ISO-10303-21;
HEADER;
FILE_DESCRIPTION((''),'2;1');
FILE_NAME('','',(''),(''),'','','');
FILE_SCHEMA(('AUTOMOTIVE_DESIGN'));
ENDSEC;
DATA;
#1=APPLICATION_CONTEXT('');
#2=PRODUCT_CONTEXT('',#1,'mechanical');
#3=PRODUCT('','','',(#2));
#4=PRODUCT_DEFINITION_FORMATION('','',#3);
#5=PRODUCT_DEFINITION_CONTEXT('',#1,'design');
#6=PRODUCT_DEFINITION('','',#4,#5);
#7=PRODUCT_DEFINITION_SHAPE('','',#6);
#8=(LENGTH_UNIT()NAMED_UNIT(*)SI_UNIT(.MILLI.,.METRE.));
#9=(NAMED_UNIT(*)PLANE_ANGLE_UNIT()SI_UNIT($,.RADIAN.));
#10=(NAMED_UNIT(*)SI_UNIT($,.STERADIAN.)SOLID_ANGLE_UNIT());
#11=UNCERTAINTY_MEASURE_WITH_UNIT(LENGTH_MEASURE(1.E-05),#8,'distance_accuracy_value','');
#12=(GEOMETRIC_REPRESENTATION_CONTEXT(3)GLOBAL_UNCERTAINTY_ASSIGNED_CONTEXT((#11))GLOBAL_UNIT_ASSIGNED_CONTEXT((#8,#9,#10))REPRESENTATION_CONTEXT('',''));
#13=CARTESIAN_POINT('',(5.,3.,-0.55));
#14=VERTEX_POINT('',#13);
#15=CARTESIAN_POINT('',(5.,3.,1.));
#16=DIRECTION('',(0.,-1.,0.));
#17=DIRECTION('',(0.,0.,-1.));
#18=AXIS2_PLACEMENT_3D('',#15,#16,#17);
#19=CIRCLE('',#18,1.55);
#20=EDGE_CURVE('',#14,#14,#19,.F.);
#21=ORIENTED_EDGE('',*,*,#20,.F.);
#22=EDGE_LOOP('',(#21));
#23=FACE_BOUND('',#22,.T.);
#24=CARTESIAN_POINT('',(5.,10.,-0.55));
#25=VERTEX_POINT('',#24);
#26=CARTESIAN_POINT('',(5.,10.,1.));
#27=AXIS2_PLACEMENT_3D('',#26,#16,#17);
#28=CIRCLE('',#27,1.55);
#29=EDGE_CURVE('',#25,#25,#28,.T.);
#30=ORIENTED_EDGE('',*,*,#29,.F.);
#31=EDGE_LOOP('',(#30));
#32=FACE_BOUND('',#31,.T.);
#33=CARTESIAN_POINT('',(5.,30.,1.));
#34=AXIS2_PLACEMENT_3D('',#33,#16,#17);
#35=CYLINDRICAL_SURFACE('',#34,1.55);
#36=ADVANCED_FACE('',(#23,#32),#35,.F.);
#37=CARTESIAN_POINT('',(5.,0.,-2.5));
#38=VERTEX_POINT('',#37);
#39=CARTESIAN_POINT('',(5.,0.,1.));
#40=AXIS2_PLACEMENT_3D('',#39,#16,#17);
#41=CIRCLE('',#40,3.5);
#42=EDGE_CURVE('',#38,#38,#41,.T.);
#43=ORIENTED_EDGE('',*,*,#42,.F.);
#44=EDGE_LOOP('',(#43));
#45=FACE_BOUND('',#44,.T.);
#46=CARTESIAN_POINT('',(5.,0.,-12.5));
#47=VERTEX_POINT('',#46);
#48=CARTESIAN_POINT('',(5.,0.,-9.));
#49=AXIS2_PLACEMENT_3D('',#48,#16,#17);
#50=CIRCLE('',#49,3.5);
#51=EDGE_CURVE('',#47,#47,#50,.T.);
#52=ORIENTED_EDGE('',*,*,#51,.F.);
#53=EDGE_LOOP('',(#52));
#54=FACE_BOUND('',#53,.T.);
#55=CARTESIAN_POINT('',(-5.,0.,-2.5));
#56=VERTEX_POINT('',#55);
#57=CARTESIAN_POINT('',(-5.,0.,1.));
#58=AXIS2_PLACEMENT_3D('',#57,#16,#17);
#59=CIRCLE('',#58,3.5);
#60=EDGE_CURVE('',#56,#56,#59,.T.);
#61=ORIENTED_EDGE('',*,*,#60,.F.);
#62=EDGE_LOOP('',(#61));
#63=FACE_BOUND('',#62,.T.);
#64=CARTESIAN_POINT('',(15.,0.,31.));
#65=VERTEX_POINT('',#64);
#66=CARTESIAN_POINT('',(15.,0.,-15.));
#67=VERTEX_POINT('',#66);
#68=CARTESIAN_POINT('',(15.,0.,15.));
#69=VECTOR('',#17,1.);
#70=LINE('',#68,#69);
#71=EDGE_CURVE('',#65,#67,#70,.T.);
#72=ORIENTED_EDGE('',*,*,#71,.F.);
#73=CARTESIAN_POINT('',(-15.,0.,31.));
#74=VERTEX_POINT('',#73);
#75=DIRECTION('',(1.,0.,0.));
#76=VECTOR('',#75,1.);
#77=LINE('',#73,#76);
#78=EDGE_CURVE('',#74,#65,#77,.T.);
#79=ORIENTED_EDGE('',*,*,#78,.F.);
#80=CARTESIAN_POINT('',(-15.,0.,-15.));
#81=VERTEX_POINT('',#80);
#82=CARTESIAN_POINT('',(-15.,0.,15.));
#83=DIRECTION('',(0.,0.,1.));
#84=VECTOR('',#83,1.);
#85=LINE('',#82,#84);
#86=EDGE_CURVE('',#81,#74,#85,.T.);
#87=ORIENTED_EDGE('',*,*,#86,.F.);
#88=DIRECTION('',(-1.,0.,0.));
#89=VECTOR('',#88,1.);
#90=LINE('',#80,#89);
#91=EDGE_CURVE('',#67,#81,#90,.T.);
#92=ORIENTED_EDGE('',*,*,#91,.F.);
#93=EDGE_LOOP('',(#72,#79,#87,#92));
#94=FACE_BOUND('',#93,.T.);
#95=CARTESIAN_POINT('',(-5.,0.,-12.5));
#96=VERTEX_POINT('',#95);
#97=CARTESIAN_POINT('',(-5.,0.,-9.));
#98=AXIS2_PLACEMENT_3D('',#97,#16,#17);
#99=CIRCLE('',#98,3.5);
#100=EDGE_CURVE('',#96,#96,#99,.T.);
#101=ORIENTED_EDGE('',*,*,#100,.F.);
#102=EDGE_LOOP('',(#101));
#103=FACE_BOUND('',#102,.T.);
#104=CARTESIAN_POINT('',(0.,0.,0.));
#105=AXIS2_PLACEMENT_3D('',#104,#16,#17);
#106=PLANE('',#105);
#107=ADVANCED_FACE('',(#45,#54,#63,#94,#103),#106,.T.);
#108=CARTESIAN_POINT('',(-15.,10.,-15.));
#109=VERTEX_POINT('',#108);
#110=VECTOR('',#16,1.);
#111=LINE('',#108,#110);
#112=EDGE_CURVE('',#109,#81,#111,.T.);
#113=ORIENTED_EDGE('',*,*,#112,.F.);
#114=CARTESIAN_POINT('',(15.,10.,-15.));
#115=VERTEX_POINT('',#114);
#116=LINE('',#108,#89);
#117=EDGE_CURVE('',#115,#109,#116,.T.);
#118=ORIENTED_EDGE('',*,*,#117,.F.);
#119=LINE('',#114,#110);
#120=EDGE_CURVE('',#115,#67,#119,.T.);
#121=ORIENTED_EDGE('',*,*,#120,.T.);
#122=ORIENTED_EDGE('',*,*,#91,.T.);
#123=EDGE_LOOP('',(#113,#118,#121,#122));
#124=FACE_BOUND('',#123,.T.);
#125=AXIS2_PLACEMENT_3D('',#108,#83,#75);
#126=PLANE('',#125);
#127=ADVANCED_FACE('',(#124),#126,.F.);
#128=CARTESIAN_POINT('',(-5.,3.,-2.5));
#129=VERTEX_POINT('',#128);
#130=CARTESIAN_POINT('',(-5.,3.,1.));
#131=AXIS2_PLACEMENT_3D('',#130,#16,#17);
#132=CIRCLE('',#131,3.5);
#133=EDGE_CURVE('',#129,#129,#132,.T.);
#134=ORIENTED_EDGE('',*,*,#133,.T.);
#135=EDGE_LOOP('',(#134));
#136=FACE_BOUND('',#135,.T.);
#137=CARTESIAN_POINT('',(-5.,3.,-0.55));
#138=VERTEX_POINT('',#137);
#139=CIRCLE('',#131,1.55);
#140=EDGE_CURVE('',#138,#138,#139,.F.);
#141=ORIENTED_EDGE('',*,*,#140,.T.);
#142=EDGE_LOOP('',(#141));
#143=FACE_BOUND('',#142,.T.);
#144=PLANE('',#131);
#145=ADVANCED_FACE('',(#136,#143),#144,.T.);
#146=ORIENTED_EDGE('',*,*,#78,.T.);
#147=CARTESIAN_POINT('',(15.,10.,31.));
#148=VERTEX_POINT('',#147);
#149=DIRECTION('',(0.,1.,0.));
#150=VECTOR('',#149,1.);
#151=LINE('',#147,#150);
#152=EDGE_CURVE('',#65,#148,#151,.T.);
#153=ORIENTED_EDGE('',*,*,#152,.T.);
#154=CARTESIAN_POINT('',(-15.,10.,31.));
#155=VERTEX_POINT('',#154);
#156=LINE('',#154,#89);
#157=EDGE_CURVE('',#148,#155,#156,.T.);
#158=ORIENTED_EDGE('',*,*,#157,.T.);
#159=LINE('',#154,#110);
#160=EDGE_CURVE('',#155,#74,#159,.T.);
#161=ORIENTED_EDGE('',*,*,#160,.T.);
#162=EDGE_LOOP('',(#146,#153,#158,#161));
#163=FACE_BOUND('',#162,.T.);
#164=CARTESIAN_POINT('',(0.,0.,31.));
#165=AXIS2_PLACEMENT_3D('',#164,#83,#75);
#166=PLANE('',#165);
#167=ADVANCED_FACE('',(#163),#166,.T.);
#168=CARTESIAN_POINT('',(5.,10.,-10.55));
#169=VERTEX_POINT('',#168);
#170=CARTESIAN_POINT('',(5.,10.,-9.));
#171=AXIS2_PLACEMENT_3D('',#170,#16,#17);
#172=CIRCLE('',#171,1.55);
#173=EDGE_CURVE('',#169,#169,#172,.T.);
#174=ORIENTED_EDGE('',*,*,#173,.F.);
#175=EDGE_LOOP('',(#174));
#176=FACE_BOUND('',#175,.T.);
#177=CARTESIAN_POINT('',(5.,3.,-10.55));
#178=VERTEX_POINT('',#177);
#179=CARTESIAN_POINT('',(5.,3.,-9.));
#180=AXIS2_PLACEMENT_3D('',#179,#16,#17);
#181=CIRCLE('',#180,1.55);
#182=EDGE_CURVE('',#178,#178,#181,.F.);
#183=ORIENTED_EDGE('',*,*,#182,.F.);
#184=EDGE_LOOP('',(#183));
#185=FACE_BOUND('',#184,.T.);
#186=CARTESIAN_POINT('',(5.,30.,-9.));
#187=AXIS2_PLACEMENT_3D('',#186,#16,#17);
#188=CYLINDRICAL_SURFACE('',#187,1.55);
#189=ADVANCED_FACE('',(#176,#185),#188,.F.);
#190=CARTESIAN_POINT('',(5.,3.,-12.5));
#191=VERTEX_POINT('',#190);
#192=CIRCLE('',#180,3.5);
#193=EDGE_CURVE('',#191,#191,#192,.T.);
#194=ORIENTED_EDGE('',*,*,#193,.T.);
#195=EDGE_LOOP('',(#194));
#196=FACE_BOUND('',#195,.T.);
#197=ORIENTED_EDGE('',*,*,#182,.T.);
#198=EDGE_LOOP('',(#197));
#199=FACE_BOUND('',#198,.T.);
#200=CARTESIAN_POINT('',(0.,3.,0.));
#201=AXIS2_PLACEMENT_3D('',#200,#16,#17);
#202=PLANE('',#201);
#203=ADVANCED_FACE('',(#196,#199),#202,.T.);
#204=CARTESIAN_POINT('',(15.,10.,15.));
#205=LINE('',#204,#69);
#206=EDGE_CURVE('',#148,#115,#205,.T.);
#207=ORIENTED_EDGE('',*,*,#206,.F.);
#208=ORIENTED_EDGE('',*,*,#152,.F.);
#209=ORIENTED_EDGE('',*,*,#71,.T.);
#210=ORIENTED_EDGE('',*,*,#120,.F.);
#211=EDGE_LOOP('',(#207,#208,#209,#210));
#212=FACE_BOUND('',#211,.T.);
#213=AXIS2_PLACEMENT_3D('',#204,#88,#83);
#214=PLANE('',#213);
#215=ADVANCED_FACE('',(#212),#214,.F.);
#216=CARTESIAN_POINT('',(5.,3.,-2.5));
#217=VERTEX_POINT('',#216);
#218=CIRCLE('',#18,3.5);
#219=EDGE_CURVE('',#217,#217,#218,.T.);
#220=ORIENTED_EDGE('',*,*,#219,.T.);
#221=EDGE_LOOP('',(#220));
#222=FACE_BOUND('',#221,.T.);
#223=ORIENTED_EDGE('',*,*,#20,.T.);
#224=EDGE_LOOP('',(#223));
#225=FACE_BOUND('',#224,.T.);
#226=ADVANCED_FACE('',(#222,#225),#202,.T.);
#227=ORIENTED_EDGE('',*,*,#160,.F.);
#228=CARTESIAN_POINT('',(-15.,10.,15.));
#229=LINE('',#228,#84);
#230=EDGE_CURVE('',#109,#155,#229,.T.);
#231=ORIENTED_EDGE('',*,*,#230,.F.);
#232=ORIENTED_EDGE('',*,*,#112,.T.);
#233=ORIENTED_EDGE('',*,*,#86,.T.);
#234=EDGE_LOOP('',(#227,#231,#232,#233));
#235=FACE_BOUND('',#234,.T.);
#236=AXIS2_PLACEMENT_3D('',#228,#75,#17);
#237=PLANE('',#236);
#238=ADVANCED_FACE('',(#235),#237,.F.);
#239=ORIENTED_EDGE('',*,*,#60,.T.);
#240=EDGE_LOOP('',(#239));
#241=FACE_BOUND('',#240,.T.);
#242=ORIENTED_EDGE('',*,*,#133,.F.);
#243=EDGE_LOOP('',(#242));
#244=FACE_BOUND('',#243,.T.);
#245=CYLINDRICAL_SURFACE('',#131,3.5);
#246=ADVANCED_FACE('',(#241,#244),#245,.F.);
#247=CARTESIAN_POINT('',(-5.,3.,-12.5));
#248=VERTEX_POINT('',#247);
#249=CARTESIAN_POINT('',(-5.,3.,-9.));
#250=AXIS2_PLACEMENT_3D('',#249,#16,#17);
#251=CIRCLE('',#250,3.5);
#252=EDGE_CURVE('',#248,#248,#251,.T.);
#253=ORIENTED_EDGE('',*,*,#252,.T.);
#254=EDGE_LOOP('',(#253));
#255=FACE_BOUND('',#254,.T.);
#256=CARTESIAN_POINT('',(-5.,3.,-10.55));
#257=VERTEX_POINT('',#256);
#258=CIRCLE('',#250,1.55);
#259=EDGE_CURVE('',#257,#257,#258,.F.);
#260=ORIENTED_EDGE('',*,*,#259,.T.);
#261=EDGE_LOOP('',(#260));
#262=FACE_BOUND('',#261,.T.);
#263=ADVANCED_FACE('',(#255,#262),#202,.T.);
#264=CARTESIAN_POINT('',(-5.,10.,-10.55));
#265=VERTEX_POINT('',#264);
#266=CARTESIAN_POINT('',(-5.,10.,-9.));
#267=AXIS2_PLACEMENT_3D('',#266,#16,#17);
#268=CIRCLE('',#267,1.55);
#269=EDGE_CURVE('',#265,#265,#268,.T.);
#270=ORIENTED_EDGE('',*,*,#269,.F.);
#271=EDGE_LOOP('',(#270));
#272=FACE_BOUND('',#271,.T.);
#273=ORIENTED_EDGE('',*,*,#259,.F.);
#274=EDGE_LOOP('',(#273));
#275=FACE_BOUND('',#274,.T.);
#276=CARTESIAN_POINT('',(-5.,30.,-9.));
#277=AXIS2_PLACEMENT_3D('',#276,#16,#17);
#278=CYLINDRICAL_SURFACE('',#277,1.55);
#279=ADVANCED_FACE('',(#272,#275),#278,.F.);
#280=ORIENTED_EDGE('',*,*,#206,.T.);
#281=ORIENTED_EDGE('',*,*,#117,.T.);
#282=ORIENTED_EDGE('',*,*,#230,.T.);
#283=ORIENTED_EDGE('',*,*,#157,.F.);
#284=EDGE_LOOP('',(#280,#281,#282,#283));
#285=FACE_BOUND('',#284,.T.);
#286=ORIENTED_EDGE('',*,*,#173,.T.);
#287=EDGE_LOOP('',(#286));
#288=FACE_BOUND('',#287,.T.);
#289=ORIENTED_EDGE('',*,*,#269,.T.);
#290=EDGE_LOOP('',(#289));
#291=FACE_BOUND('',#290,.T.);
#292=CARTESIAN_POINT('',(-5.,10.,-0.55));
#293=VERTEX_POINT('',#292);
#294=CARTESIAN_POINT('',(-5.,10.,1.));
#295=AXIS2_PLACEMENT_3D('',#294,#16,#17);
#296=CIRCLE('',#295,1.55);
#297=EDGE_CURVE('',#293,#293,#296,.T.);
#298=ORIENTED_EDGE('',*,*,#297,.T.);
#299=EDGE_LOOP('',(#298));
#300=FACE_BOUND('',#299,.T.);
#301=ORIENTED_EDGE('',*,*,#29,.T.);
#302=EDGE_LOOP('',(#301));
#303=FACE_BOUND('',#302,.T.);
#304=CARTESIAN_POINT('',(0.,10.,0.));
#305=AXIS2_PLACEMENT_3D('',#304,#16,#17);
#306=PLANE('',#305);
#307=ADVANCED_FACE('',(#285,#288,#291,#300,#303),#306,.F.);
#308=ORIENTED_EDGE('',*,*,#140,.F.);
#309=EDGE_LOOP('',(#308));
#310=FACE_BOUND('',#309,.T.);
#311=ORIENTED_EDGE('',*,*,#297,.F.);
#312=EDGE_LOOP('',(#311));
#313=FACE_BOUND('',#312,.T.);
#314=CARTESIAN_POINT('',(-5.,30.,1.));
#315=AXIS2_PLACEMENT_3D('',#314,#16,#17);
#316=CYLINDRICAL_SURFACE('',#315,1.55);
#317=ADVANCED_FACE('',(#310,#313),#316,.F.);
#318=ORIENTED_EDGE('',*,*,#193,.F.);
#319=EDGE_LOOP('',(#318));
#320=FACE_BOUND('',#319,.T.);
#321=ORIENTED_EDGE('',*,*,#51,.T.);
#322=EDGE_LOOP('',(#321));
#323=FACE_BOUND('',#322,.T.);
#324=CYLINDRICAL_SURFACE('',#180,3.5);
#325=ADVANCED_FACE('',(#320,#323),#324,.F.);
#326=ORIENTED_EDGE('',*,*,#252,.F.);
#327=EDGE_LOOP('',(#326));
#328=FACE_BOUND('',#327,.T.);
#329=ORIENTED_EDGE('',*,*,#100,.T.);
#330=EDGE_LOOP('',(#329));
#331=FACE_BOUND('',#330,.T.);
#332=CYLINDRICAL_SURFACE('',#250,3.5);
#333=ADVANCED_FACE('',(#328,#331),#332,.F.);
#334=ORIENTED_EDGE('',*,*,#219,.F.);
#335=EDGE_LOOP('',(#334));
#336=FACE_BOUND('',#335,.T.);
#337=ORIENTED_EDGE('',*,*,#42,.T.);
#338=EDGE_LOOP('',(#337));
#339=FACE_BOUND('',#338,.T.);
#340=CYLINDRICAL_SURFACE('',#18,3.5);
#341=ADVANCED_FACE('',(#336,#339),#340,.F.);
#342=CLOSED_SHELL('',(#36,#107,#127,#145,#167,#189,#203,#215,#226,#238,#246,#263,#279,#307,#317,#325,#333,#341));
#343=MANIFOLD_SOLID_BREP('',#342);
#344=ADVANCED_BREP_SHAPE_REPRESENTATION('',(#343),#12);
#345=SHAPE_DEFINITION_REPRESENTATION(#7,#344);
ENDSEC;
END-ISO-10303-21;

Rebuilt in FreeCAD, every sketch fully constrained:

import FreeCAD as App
import Part
import Sketcher

V = App.Vector

doc = App.newDocument("Part")
body = doc.addObject("PartDesign::Body", "Body")

# Sketch on XZ plane
sketch1 = doc.addObject("Sketcher::SketchObject", "Sketch")
body.addObject(sketch1)
sketch1.AttachmentSupport = (doc.XZ_Plane, [""])
sketch1.MapMode = "FlatFace"
sketch1.addGeometry(Part.LineSegment(V(-15, -15, 0), V(-15, 15, 0)), False)
sketch1.addGeometry(Part.LineSegment(V(-15, 15, 0), V(15, 15, 0)), False)
sketch1.addGeometry(Part.LineSegment(V(15, 15, 0), V(15, -15, 0)), False)
sketch1.addGeometry(Part.LineSegment(V(15, -15, 0), V(-15, -15, 0)), False)
sketch1.addConstraint(Sketcher.Constraint("Coincident", 0, 2, 1, 1))
sketch1.addConstraint(Sketcher.Constraint("Coincident", 1, 2, 2, 1))
sketch1.addConstraint(Sketcher.Constraint("Coincident", 2, 2, 3, 1))
sketch1.addConstraint(Sketcher.Constraint("Coincident", 3, 2, 0, 1))
sketch1.addConstraint(Sketcher.Constraint("Vertical", 0))
sketch1.addConstraint(Sketcher.Constraint("Horizontal", 1))
sketch1.addConstraint(Sketcher.Constraint("Vertical", 2))
sketch1.addConstraint(Sketcher.Constraint("Horizontal", 3))
sketch1.addConstraint(Sketcher.Constraint("Symmetric", 0, 2, 2, 2, -1, 1))
sketch1.addConstraint(Sketcher.Constraint("Equal", 3, 0))
sketch1.addConstraint(Sketcher.Constraint("DistanceX", 1, 1, 1, 2, 30.0))
pad1 = doc.addObject("PartDesign::Pad", "Pad")
body.addObject(pad1)
pad1.Profile = sketch1
pad1.Length = 10
pad1.Reversed = True

# Sketch on XZ plane
sketch2 = doc.addObject("Sketcher::SketchObject", "Sketch001")
body.addObject(sketch2)
sketch2.AttachmentSupport = (doc.XZ_Plane, [""])
sketch2.MapMode = "FlatFace"
sketch2.addGeometry(Part.Circle(V(5, 1, 0), V(0, 0, 1), 1.55), False)
sketch2.addGeometry(Part.Circle(V(5, -9, 0), V(0, 0, 1), 1.55), False)
sketch2.addGeometry(Part.Circle(V(-5, 1, 0), V(0, 0, 1), 1.55), False)
sketch2.addGeometry(Part.Circle(V(-5, -9, 0), V(0, 0, 1), 1.55), False)
sketch2.addConstraint(Sketcher.Constraint("Equal", 0, 1))
sketch2.addConstraint(Sketcher.Constraint("Equal", 1, 2))
sketch2.addConstraint(Sketcher.Constraint("Equal", 2, 3))
sketch2.addConstraint(Sketcher.Constraint("Symmetric", 0, 3, 2, 3, -2))
sketch2.addConstraint(Sketcher.Constraint("Symmetric", 1, 3, 3, 3, -2))
sketch2.addConstraint(Sketcher.Constraint("Vertical", 0, 3, 1, 3))
sketch2.addConstraint(Sketcher.Constraint("Diameter", 0, 3.1))
sketch2.addConstraint(Sketcher.Constraint("DistanceX", -1, 1, 0, 3, 5.0))
sketch2.addConstraint(Sketcher.Constraint("DistanceY", -1, 1, 0, 3, 1.0))
sketch2.addConstraint(Sketcher.Constraint("DistanceY", 1, 3, -1, 1, 9.0))
pocket1 = doc.addObject("PartDesign::Pocket", "Pocket")
body.addObject(pocket1)
pocket1.Profile = sketch2
pocket1.Length = 30

# Sketch on XZ plane
sketch3 = doc.addObject("Sketcher::SketchObject", "Sketch002")
body.addObject(sketch3)
sketch3.AttachmentSupport = (doc.XZ_Plane, [""])
sketch3.MapMode = "FlatFace"
sketch3.addGeometry(Part.Circle(V(5, 1, 0), V(0, 0, 1), 3.5), False)
sketch3.addGeometry(Part.Circle(V(5, 1, 0), V(0, 0, 1), 1.55), False)
sketch3.addGeometry(Part.Circle(V(5, -9, 0), V(0, 0, 1), 3.5), False)
sketch3.addGeometry(Part.Circle(V(5, -9, 0), V(0, 0, 1), 1.55), False)
sketch3.addGeometry(Part.Circle(V(-5, -9, 0), V(0, 0, 1), 3.5), False)
sketch3.addGeometry(Part.Circle(V(-5, -9, 0), V(0, 0, 1), 1.55), False)
sketch3.addGeometry(Part.Circle(V(-5, 1, 0), V(0, 0, 1), 3.5), False)
sketch3.addConstraint(Sketcher.Constraint("Coincident", 1, 3, 0, 3))
sketch3.addConstraint(Sketcher.Constraint("Coincident", 3, 3, 2, 3))
sketch3.addConstraint(Sketcher.Constraint("Coincident", 5, 3, 4, 3))
sketch3.addConstraint(Sketcher.Constraint("Equal", 0, 2))
sketch3.addConstraint(Sketcher.Constraint("Equal", 1, 3))
sketch3.addConstraint(Sketcher.Constraint("Equal", 2, 4))
sketch3.addConstraint(Sketcher.Constraint("Equal", 3, 5))
sketch3.addConstraint(Sketcher.Constraint("Equal", 4, 6))
sketch3.addConstraint(Sketcher.Constraint("Symmetric", 2, 3, 4, 3, -2))
sketch3.addConstraint(Sketcher.Constraint("Symmetric", 0, 3, 6, 3, -2))
sketch3.addConstraint(Sketcher.Constraint("Vertical", 1, 3, 2, 3))
sketch3.addConstraint(Sketcher.Constraint("Diameter", 0, 7.0))
sketch3.addConstraint(Sketcher.Constraint("Diameter", 1, 3.1))
sketch3.addConstraint(Sketcher.Constraint("DistanceX", -1, 1, 0, 3, 5.0))
sketch3.addConstraint(Sketcher.Constraint("DistanceY", -1, 1, 0, 3, 1.0))
sketch3.addConstraint(Sketcher.Constraint("DistanceY", 2, 3, -1, 1, 9.0))
pocket2 = doc.addObject("PartDesign::Pocket", "Pocket001")
body.addObject(pocket2)
pocket2.Profile = sketch3
pocket2.Length = 3

# Sketch on XY plane
sketch4 = doc.addObject("Sketcher::SketchObject", "Sketch003")
body.addObject(sketch4)
sketch4.AttachmentSupport = (doc.XY_Plane, [""])
sketch4.MapMode = "FlatFace"
sketch4.AttachmentOffset = App.Placement(V(0, 0, 15), App.Rotation())
sketch4.addGeometry(Part.LineSegment(V(-15, 10, 0), V(-15, 0, 0)), False)
sketch4.addGeometry(Part.LineSegment(V(-15, 0, 0), V(15, 0, 0)), False)
sketch4.addGeometry(Part.LineSegment(V(15, 0, 0), V(15, 10, 0)), False)
sketch4.addGeometry(Part.LineSegment(V(15, 10, 0), V(-15, 10, 0)), False)
sketch4.addConstraint(Sketcher.Constraint("Coincident", 0, 2, 1, 1))
sketch4.addConstraint(Sketcher.Constraint("Coincident", 1, 2, 2, 1))
sketch4.addConstraint(Sketcher.Constraint("Coincident", 2, 2, 3, 1))
sketch4.addConstraint(Sketcher.Constraint("Coincident", 3, 2, 0, 1))
sketch4.addConstraint(Sketcher.Constraint("Vertical", 0))
sketch4.addConstraint(Sketcher.Constraint("Horizontal", 1))
sketch4.addConstraint(Sketcher.Constraint("Vertical", 2))
sketch4.addConstraint(Sketcher.Constraint("Horizontal", 3))
sketch4.addConstraint(Sketcher.Constraint("Symmetric", 0, 2, 1, 2, -1, 1))
sketch4.addConstraint(Sketcher.Constraint("DistanceX", 1, 1, 1, 2, 30.0))
sketch4.addConstraint(Sketcher.Constraint("DistanceY", 0, 2, 0, 1, 10.0))
pad2 = doc.addObject("PartDesign::Pad", "Pad001")
body.addObject(pad2)
pad2.Profile = sketch4
pad2.Length = 16

doc.recompute()
